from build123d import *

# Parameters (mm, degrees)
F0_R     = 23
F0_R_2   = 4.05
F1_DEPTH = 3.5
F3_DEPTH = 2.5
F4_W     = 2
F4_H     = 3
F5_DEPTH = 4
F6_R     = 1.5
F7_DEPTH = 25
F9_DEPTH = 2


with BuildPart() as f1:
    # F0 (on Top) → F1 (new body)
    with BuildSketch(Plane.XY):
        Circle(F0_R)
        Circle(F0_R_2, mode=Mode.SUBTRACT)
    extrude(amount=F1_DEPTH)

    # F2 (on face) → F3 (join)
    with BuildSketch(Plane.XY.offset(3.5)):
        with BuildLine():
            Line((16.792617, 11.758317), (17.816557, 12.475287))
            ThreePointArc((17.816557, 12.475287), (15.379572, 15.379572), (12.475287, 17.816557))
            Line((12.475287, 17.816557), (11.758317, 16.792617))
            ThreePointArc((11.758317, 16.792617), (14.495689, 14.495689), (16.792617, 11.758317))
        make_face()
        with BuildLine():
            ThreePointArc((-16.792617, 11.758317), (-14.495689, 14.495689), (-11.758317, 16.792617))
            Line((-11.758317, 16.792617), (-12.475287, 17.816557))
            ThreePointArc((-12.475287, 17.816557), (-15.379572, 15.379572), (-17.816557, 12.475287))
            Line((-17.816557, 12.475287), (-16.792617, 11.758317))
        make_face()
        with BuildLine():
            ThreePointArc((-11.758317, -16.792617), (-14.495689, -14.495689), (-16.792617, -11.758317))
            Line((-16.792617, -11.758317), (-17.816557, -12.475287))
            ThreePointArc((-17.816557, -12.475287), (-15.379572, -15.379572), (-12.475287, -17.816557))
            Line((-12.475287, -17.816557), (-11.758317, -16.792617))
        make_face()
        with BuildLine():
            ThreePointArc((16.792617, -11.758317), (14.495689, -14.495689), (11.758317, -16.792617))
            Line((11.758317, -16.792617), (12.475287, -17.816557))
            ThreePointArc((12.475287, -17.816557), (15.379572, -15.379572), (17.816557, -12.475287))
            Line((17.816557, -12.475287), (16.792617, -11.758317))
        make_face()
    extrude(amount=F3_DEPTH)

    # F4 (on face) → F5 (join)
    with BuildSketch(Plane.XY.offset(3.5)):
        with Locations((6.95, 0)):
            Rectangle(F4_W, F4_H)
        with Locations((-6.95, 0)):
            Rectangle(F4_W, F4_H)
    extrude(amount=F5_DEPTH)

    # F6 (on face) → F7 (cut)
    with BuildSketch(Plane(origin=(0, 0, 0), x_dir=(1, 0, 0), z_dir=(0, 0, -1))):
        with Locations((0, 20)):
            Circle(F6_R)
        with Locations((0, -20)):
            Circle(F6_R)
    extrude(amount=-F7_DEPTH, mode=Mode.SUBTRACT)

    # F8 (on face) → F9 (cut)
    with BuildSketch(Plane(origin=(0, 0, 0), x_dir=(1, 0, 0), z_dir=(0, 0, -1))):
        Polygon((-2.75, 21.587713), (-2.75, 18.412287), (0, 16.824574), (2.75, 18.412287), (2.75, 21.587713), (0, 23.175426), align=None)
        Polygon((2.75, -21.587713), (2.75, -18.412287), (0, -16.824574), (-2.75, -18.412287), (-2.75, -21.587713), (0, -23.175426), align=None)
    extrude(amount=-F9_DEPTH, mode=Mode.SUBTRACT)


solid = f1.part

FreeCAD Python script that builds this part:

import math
import FreeCAD as App
import Part
import Sketcher

V = App.Vector
Q = App.Units.Quantity


def add_polygon(sketch, points):
    """Adds a closed chain of lines whose ends are joined by coincident constraints."""
    first, n = sketch.GeometryCount, len(points)
    for a, b in zip(points, points[1:] + points[:1]):
        sketch.addGeometry(Part.LineSegment(App.Vector(*a, 0), App.Vector(*b, 0)), False)
    for i in range(n):
        sketch.addConstraint(Sketcher.Constraint("Coincident", first + i, 2, first + (i + 1) % n, 1))

doc = App.newDocument("Part")
params = doc.addObject("Spreadsheet::Sheet", "Params")
for row, (alias, value) in enumerate([
    ("sketch1_diameter", "46 mm"),
    ("sketch1_diameter2", "8.1 mm"),
    ("pad1_length", "3.5 mm"),
    ("sketch2_length", "1.25 mm"),
    ("pad2_length", "2.5 mm"),
    ("sketch3_width", "2 mm"),
    ("sketch3_height", "3 mm"),
    ("pad3_length", "4 mm"),
    ("sketch4_diameter", "3 mm"),
    ("pocket1_length", "25 mm"),
    ("pocket2_length", "2 mm"),
], start=1):
    params.set(f"A{row}", alias)
    params.set(f"B{row}", "=" + value)
    params.setAlias(f"B{row}", alias)

body = doc.addObject("PartDesign::Body", "Body")

# Sketch on XY plane
sketch1 = doc.addObject("Sketcher::SketchObject", "Sketch")
body.addObject(sketch1)
sketch1.AttachmentSupport = (doc.XY_Plane, [""])
sketch1.MapMode = "FlatFace"
sketch1.addGeometry(Part.Circle(V(0, 0, 0), V(0, 0, 1), 23), False)
sketch1.addGeometry(Part.Circle(V(0, 0, 0), V(0, 0, 1), 4), False)
sketch1.addConstraint(Sketcher.Constraint("Coincident", 0, 3, -1, 1))
sketch1.addConstraint(Sketcher.Constraint("Coincident", 1, 3, -1, 1))
sketch1.addConstraint(Sketcher.Constraint("Diameter", 0, Q("46 mm")))
sketch1.addConstraint(Sketcher.Constraint("Diameter", 1, Q("8.1 mm")))
sketch1.setExpression("Constraints[2]", "Params.sketch1_diameter")
sketch1.setExpression("Constraints[3]", "Params.sketch1_diameter2")
pad1 = doc.addObject("PartDesign::Pad", "Pad")
body.addObject(pad1)
pad1.Profile = sketch1
pad1.setExpression("Length", "Params.pad1_length")

# Sketch on XY plane
sketch2 = doc.addObject("Sketcher::SketchObject", "Sketch001")
body.addObject(sketch2)
sketch2.AttachmentSupport = (doc.XY_Plane, [""])
sketch2.MapMode = "FlatFace"
sketch2.AttachmentOffset = App.Placement(V(0, 0, 3.5), App.Rotation())
sketch2.addGeometry(Part.LineSegment(V(16.8, 11.8, 0), V(17.8, 12.5, 0)), False)
sketch2.addGeometry(Part.ArcOfCircle(Part.Circle(V(0, 0, 0), V(0, 0, 1), 21.8), math.radians(35), math.radians(55)), False)
sketch2.addGeometry(Part.LineSegment(V(12.5, 17.8, 0), V(11.8, 16.8, 0)), False)
sketch2.addGeometry(Part.ArcOfCircle(Part.Circle(V(0, 0, 0), V(0, 0, 1), 20.5), math.radians(35), math.radians(55)), False)
sketch2.addGeometry(Part.ArcOfCircle(Part.Circle(V(0, 0, 0), V(0, 0, 1), 20.5), math.radians(125), math.radians(145)), False)
sketch2.addGeometry(Part.LineSegment(V(-11.8, 16.8, 0), V(-12.5, 17.8, 0)), False)
sketch2.addGeometry(Part.ArcOfCircle(Part.Circle(V(0, 0, 0), V(0, 0, 1), 21.8), math.radians(125), math.radians(145)), False)
sketch2.addGeometry(Part.LineSegment(V(-17.8, 12.5, 0), V(-16.8, 11.8, 0)), False)
sketch2.addGeometry(Part.ArcOfCircle(Part.Circle(V(0, 0, 0), V(0, 0, 1), 20.5), math.radians(-145), math.radians(-125)), False)
sketch2.addGeometry(Part.LineSegment(V(-16.8, -11.8, 0), V(-17.8, -12.5, 0)), False)
sketch2.addGeometry(Part.ArcOfCircle(Part.Circle(V(0, 0, 0), V(0, 0, 1), 21.8), math.radians(-145), math.radians(-125)), False)
sketch2.addGeometry(Part.LineSegment(V(-12.5, -17.8, 0), V(-11.8, -16.8, 0)), False)
sketch2.addGeometry(Part.ArcOfCircle(Part.Circle(V(0, 0, 0), V(0, 0, 1), 20.5), math.radians(-55), math.radians(-35)), False)
sketch2.addGeometry(Part.LineSegment(V(11.8, -16.8, 0), V(12.5, -17.8, 0)), False)
sketch2.addGeometry(Part.ArcOfCircle(Part.Circle(V(0, 0, 0), V(0, 0, 1), 21.8), math.radians(-55), math.radians(-35)), False)
sketch2.addGeometry(Part.LineSegment(V(17.8, -12.5, 0), V(16.8, -11.8, 0)), False)
sketch2.addConstraint(Sketcher.Constraint("Coincident", 0, 2, 1, 1))
sketch2.addConstraint(Sketcher.Constraint("Coincident", 1, 2, 2, 1))
sketch2.addConstraint(Sketcher.Constraint("Coincident", 2, 2, 3, 2))
sketch2.addConstraint(Sketcher.Constraint("Coincident", 3, 1, 0, 1))
sketch2.addConstraint(Sketcher.Constraint("Coincident", 4, 1, 5, 1))
sketch2.addConstraint(Sketcher.Constraint("Coincident", 5, 2, 6, 1))
sketch2.addConstraint(Sketcher.Constraint("Coincident", 6, 2, 7, 1))
sketch2.addConstraint(Sketcher.Constraint("Coincident", 7, 2, 4, 2))
sketch2.addConstraint(Sketcher.Constraint("Coincident", 8, 1, 9, 1))
sketch2.addConstraint(Sketcher.Constraint("Coincident", 9, 2, 10, 1))
sketch2.addConstraint(Sketcher.Constraint("Coincident", 10, 2, 11, 1))
sketch2.addConstraint(Sketcher.Constraint("Coincident", 11, 2, 8, 2))
sketch2.addConstraint(Sketcher.Constraint("Coincident", 12, 1, 13, 1))
sketch2.addConstraint(Sketcher.Constraint("Coincident", 13, 2, 14, 1))
sketch2.addConstraint(Sketcher.Constraint("Coincident", 14, 2, 15, 1))
sketch2.addConstraint(Sketcher.Constraint("Coincident", 15, 2, 12, 2))
sketch2.addConstraint(Sketcher.Constraint("Coincident", 3, 3, -1, 1))
sketch2.addConstraint(Sketcher.Constraint("Coincident", 4, 3, -1, 1))
sketch2.addConstraint(Sketcher.Constraint("Coincident", 8, 3, -1, 1))
sketch2.addConstraint(Sketcher.Constraint("Coincident", 12, 3, -1, 1))
sketch2.addConstraint(Sketcher.Constraint("Equal", 3, 4))
sketch2.addConstraint(Sketcher.Constraint("Equal", 1, 6))
sketch2.addConstraint(Sketcher.Constraint("Equal", 4, 8))
sketch2.addConstraint(Sketcher.Constraint("Equal", 6, 10))
sketch2.addConstraint(Sketcher.Constraint("Equal", 8, 12))
sketch2.addConstraint(Sketcher.Constraint("Equal", 10, 14))
sketch2.addConstraint(Sketcher.Constraint("Symmetric", 1, 3, 10, 3, -1, 1))
sketch2.addConstraint(Sketcher.Constraint("Symmetric", 6, 3, 14, 3, -1, 1))
sketch2.addConstraint(Sketcher.Constraint("Symmetric", 1, 3, 6, 3, -2))
sketch2.addConstraint(Sketcher.Constraint("Perpendicular", 0, 5))
sketch2.addConstraint(Sketcher.Constraint("Perpendicular", 2, 7))
sketch2.addConstraint(Sketcher.Constraint("Perpendicular", 5, 9))
sketch2.addConstraint(Sketcher.Constraint("Perpendicular", 7, 11))
sketch2.addConstraint(Sketcher.Constraint("Perpendicular", 9, 13))
sketch2.addConstraint(Sketcher.Constraint("Perpendicular", 11, 15))
sketch2.addConstraint(Sketcher.Constraint("Horizontal", 2, 2, 4, 1))
sketch2.addConstraint(Sketcher.Constraint("Horizontal", 1, 2, 5, 2))
sketch2.addConstraint(Sketcher.Constraint("Horizontal", 0, 2, 6, 2))
sketch2.addConstraint(Sketcher.Constraint("Horizontal", 11, 2, 12, 1))
sketch2.addConstraint(Sketcher.Constraint("Horizontal", 9, 2, 14, 2))
sketch2.addConstraint(Sketcher.Constraint("Vertical", 7, 2, 8, 1))
sketch2.addConstraint(Sketcher.Constraint("Vertical", 5, 2, 10, 2))
sketch2.addConstraint(Sketcher.Constraint("Equal", 0, 2))
sketch2.addConstraint(Sketcher.Constraint("Angle", 0, Q("34.999981 deg")))
sketch2.addConstraint(Sketcher.Constraint("Distance", 0, Q("1.25 mm")))
sketch2.addConstraint(Sketcher.Constraint("Radius", 1, Q("21.750028 mm")))
sketch2.addConstraint(Sketcher.Constraint("Radius", 3, Q("20.500008 mm")))
sketch2.addConstraint(Sketcher.Constraint("DistanceX", 2, 2, 3, 1, Q("5.0343 mm")))
sketch2.addConstraint(Sketcher.Constraint("DistanceY", 3, 1, 2, 2, Q("5.0343 mm")))
sketch2.setExpression("Constraints[44]", "Params.sketch2_length")
pad2 = doc.addObject("PartDesign::Pad", "Pad001")
body.addObject(pad2)
pad2.Profile = sketch2
pad2.setExpression("Length", "Params.pad2_length")

# Sketch on XY plane
sketch3 = doc.addObject("Sketcher::SketchObject", "Sketch002")
body.addObject(sketch3)
sketch3.AttachmentSupport = (doc.XY_Plane, [""])
sketch3.MapMode = "FlatFace"
sketch3.AttachmentOffset = App.Placement(V(0, 0, 3.5), App.Rotation())
add_polygon(sketch3, [(6, 1.5), (6, -1.5), (8, -1.5), (8, 1.5)])  # lines 0-3
add_polygon(sketch3, [(-8, 1.5), (-8, -1.5), (-6, -1.5), (-6, 1.5)])  # lines 4-7
sketch3.addConstraint(Sketcher.Constraint("Vertical", 0))
sketch3.addConstraint(Sketcher.Constraint("Horizontal", 1))
sketch3.addConstraint(Sketcher.Constraint("Vertical", 2))
sketch3.addConstraint(Sketcher.Constraint("Horizontal", 3))
sketch3.addConstraint(Sketcher.Constraint("Vertical", 4))
sketch3.addConstraint(Sketcher.Constraint("Horizontal", 5))
sketch3.addConstraint(Sketcher.Constraint("Vertical", 6))
sketch3.addConstraint(Sketcher.Constraint("Horizontal", 7))
sketch3.addConstraint(Sketcher.Constraint("Symmetric", 2, 2, 4, 2, -1, 1))
sketch3.addConstraint(Sketcher.Constraint("Symmetric", 0, 2, 6, 2, -1, 1))
sketch3.addConstraint(Sketcher.Constraint("Horizontal", 1, 2, 4, 2))
sketch3.addConstraint(Sketcher.Constraint("DistanceX", 1, 1, 1, 2, Q("2 mm")))
sketch3.addConstraint(Sketcher.Constraint("DistanceY", 0, 2, 0, 1, Q("3 mm")))
sketch3.addConstraint(Sketcher.Constraint("DistanceX", 4, 2, 0, 2, Q("13.9 mm")))
sketch3.setExpression("Constraints[19]", "Params.sketch3_width")
sketch3.setExpression("Constraints[20]", "Params.sketch3_height")
pad3 = doc.addObject("PartDesign::Pad", "Pad002")
body.addObject(pad3)
pad3.Profile = sketch3
pad3.setExpression("Length", "Params.pad3_length")

# Sketch on XY plane
sketch4 = doc.addObject("Sketcher::SketchObject", "Sketch003")
body.addObject(sketch4)
sketch4.AttachmentSupport = (doc.XY_Plane, [""])
sketch4.MapMode = "FlatFace"
sketch4.addGeometry(Part.Circle(V(0, -20, 0), V(0, 0, 1), 1.5), False)
sketch4.addGeometry(Part.Circle(V(0, 20, 0), V(0, 0, 1), 1.5), False)
sketch4.addConstraint(Sketcher.Constraint("Equal", 0, 1))
sketch4.addConstraint(Sketcher.Constraint("Symmetric", 0, 3, 1, 3, -1, 1))
sketch4.addConstraint(Sketcher.Constraint("PointOnObject", 0, 3, -2))
sketch4.addConstraint(Sketcher.Constraint("Diameter", 0, Q("3 mm")))
sketch4.addConstraint(Sketcher.Constraint("DistanceY", 0, 3, -1, 1, Q("20 mm")))
sketch4.setExpression("Constraints[3]", "Params.sketch4_diameter")
pocket1 = doc.addObject("PartDesign::Pocket", "Pocket")
body.addObject(pocket1)
pocket1.Profile = sketch4
pocket1.setExpression("Length", "Params.pocket1_length")
pocket1.Reversed = True

# Sketch on XY plane
sketch5 = doc.addObject("Sketcher::SketchObject", "Sketch004")
body.addObject(sketch5)
sketch5.AttachmentSupport = (doc.XY_Plane, [""])
sketch5.MapMode = "FlatFace"
add_polygon(sketch5, [(-2.8, -21.6), (-2.8, -18.4), (0, -16.8), (2.8, -18.4), (2.8, -21.6), (0, -23.2)])  # lines 0-5
add_polygon(sketch5, [(2.8, 21.6), (2.8, 18.4), (0, 16.8), (-2.8, 18.4), (-2.8, 21.6), (0, 23.2)])  # lines 6-11
sketch5.addConstraint(Sketcher.Constraint("Vertical", 0))
sketch5.addConstraint(Sketcher.Constraint("Vertical", 3))
sketch5.addConstraint(Sketcher.Constraint("Vertical", 6))
sketch5.addConstraint(Sketcher.Constraint("Vertical", 9))
sketch5.addConstraint(Sketcher.Constraint("Symmetric", 0, 2, 6, 2, -1, 1))
sketch5.addConstraint(Sketcher.Constraint("Symmetric", 1, 2, 7, 2, -1, 1))
sketch5.addConstraint(Sketcher.Constraint("Symmetric", 2, 2, 8, 2, -1, 1))
sketch5.addConstraint(Sketcher.Constraint("Symmetric", 4, 2, 10, 2, -1, 1))
sketch5.addConstraint(Sketcher.Constraint("Symmetric", 0, 2, 2, 2, -2))
sketch5.addConstraint(Sketcher.Constraint("PointOnObject", 1, 2, -2))
sketch5.addConstraint(Sketcher.Constraint("PointOnObject", 4, 2, -2))
sketch5.addConstraint(Sketcher.Constraint("Parallel", 1, 4))
sketch5.addConstraint(Sketcher.Constraint("Parallel", 2, 5))
sketch5.addConstraint(Sketcher.Constraint("Parallel", 7, 10))
sketch5.addConstraint(Sketcher.Constraint("Parallel", 8, 11))
sketch5.addConstraint(Sketcher.Constraint("Angle", 1, Q("29.999996 deg")))
sketch5.addConstraint(Sketcher.Constraint("DistanceY", 3, 2, 6, 2, Q("40 mm")))
sketch5.addConstraint(Sketcher.Constraint("DistanceX", 0, 2, 2, 2, Q("5.5 mm")))
sketch5.addConstraint(Sketcher.Constraint("DistanceY", 0, 1, 0, 2, Q("3.175426 mm")))
pocket2 = doc.addObject("PartDesign::Pocket", "Pocket001")
body.addObject(pocket2)
pocket2.Profile = sketch5
pocket2.setExpression("Length", "Params.pocket2_length")
pocket2.Reversed = True

doc.recompute()
